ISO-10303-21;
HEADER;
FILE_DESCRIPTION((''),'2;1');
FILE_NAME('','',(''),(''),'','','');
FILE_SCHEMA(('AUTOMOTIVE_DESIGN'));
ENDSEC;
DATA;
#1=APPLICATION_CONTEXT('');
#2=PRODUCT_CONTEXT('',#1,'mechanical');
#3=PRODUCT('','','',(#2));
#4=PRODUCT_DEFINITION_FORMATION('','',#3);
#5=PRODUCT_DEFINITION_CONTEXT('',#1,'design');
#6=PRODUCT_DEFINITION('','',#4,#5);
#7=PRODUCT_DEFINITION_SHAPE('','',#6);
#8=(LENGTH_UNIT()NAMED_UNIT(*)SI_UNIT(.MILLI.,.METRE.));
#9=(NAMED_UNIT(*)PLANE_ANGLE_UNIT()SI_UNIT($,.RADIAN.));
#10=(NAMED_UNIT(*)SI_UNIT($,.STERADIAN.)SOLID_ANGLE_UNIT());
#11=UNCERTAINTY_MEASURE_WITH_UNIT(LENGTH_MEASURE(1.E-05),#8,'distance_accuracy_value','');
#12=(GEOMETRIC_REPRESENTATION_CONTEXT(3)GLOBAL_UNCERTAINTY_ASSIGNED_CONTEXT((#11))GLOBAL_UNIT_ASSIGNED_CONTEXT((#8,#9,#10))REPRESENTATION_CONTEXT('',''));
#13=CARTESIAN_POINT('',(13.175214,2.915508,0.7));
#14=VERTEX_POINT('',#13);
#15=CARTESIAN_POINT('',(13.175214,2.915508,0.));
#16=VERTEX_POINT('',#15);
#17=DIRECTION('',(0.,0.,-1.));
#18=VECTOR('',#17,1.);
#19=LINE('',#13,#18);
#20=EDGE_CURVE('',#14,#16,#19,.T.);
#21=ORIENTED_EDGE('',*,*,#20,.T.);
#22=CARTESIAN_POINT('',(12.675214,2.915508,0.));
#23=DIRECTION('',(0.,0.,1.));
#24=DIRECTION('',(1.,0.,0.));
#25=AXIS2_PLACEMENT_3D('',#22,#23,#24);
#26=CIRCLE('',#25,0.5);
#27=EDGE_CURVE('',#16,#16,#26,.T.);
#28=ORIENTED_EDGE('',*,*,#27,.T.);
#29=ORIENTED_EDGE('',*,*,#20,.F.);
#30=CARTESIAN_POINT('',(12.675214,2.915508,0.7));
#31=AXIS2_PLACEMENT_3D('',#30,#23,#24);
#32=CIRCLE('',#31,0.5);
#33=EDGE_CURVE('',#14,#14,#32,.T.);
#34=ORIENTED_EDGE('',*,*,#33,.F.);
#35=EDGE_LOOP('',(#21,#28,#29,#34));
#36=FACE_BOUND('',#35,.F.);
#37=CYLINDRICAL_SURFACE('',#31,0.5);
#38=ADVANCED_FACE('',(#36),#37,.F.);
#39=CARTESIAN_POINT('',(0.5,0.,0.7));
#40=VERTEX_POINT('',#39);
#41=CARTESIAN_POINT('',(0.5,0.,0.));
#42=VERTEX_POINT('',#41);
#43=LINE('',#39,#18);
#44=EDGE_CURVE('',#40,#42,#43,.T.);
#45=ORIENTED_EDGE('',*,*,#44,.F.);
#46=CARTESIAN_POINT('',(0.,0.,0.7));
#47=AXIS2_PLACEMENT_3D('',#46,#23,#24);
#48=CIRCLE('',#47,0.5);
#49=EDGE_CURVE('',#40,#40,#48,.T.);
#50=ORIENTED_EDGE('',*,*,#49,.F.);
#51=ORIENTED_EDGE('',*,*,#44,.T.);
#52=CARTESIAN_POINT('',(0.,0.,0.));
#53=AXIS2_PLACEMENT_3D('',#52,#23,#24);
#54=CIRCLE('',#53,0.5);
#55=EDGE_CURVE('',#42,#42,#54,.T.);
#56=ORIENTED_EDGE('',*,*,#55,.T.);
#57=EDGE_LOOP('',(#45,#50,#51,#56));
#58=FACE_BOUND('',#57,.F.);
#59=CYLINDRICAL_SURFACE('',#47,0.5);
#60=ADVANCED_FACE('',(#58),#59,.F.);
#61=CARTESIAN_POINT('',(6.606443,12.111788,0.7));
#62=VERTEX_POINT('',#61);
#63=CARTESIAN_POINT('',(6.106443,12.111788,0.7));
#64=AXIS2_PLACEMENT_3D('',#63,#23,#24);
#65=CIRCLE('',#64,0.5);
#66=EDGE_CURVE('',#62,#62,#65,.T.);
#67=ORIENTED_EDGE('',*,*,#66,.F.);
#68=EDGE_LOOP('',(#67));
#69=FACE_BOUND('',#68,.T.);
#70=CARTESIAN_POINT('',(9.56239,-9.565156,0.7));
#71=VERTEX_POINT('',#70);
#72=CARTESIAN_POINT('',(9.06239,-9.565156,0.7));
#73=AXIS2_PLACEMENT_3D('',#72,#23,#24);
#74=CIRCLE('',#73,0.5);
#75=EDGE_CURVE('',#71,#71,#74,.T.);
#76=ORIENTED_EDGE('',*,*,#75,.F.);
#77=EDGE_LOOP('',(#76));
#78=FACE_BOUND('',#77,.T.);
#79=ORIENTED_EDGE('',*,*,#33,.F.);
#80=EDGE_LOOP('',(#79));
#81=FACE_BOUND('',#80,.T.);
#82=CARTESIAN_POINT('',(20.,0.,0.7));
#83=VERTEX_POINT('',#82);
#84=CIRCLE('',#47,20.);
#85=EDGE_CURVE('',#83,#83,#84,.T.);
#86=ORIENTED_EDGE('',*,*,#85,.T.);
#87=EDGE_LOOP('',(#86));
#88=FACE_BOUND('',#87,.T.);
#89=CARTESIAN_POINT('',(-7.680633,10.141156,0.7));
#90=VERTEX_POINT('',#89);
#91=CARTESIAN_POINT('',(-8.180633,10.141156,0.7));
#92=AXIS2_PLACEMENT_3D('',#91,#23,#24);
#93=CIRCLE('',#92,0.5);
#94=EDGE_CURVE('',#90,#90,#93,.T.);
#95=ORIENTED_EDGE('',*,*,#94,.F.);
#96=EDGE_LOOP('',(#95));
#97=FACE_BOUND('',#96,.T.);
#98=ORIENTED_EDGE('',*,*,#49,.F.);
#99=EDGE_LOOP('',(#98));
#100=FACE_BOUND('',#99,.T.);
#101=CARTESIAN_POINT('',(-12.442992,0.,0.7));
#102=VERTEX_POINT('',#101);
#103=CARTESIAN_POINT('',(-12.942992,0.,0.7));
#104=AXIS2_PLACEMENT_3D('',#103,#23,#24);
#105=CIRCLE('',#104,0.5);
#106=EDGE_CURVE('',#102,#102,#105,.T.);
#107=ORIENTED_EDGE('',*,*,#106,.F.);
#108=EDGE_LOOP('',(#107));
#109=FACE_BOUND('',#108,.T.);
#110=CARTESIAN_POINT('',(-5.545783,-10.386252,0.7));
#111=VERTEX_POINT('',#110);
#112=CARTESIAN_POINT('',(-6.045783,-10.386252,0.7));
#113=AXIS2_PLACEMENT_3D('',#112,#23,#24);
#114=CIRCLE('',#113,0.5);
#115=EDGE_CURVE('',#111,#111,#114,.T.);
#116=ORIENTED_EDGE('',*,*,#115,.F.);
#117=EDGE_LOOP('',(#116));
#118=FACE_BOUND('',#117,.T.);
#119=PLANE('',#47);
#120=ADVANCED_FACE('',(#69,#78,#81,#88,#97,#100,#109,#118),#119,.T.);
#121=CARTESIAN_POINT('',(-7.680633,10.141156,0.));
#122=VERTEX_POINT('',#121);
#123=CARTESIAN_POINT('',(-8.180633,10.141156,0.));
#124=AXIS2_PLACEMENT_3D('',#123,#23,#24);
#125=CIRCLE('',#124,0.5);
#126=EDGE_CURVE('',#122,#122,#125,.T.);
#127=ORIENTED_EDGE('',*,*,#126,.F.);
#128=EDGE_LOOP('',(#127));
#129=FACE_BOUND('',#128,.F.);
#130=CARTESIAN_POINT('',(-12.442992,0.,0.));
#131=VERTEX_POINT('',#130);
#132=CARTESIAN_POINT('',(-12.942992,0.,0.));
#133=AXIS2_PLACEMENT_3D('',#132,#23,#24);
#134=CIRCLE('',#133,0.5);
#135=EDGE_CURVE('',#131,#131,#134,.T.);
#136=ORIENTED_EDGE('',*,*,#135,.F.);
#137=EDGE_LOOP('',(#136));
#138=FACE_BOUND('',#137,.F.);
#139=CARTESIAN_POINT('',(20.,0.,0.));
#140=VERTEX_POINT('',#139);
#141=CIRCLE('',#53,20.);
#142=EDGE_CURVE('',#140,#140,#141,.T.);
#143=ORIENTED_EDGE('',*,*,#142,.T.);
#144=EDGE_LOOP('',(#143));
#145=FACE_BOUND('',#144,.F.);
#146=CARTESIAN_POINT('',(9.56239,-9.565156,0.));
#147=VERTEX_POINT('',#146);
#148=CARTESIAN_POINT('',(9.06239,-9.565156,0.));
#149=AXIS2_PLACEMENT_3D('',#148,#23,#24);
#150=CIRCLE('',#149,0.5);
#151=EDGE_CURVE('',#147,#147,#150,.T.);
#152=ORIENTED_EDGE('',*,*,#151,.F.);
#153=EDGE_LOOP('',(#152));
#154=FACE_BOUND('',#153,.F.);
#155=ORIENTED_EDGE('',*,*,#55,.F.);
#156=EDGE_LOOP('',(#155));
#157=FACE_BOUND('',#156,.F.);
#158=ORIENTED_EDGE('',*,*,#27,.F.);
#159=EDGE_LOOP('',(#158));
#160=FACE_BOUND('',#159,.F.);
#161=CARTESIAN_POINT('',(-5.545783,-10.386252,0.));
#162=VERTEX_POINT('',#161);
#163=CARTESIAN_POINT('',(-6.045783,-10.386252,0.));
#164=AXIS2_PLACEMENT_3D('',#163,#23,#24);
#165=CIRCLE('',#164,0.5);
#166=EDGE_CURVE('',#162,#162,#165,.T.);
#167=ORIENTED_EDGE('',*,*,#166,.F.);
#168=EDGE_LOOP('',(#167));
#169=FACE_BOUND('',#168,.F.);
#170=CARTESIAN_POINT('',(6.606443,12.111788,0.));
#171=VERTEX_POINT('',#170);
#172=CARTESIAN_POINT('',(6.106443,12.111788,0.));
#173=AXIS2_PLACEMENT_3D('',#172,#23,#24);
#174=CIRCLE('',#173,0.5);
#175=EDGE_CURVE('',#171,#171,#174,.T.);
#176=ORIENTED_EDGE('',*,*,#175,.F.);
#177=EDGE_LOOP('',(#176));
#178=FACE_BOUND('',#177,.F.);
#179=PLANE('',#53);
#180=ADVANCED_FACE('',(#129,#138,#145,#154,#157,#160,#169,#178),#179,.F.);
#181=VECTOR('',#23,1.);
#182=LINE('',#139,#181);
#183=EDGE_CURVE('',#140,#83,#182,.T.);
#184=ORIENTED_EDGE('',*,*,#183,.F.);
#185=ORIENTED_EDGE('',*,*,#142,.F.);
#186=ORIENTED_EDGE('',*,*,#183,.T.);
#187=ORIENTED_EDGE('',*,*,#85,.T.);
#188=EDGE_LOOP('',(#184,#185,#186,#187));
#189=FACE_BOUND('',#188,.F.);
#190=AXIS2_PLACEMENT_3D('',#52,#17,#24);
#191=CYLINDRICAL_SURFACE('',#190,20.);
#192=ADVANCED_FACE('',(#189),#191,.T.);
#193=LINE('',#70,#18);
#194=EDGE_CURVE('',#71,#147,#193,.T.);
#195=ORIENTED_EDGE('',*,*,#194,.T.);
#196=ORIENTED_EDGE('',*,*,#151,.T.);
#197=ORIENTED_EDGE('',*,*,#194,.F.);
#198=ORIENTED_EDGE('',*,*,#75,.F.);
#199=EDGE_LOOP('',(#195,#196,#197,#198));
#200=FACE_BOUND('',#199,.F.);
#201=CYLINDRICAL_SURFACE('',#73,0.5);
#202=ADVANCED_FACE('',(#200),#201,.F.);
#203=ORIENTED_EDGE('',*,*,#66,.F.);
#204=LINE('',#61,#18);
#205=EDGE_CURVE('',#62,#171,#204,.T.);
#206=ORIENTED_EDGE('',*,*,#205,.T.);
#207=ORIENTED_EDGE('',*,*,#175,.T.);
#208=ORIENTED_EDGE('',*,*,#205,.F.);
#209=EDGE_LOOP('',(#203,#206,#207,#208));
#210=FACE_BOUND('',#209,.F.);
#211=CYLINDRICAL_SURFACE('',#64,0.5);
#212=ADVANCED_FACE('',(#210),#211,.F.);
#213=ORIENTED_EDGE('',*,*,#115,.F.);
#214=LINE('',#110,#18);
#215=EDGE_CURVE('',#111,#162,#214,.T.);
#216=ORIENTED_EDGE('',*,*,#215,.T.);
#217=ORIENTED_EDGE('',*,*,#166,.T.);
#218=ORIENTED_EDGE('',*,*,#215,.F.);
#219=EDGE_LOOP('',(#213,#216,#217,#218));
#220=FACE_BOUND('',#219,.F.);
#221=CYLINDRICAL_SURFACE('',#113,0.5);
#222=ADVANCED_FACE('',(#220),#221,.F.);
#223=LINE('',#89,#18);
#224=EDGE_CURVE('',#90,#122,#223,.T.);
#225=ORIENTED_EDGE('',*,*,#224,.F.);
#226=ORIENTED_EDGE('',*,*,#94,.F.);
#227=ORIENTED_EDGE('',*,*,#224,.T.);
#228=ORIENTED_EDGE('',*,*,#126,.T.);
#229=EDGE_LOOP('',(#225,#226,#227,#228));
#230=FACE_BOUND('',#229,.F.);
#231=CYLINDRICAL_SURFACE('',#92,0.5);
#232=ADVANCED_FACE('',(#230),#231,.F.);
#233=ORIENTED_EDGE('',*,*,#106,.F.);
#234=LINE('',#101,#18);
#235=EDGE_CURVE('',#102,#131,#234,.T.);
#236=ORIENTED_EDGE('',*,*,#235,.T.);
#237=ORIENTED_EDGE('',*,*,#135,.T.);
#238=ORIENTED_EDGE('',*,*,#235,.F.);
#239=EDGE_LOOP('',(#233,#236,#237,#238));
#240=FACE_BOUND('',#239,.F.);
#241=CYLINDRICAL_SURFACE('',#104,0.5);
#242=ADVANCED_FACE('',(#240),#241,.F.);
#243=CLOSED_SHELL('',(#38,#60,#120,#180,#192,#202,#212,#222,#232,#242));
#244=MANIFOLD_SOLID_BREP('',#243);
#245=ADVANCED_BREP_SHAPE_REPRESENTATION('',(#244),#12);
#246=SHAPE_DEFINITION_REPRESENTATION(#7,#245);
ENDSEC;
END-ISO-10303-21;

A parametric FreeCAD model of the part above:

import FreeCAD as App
import Part
import Sketcher
Q = App.Units.Quantity

doc = App.newDocument("Part")
body = doc.addObject("PartDesign::Body", "Body")

# Sketch on XY plane
sketch1 = doc.addObject("Sketcher::SketchObject", "Sketch")
body.addObject(sketch1)
sketch1.AttachmentSupport = (doc.XY_Plane, [""])
sketch1.MapMode = "FlatFace"
sketch1.addGeometry(Part.Circle(App.Vector(0, 0, 0), App.Vector(0, 0, 1), 20), False)
sketch1.addConstraint([
    Sketcher.Constraint("Coincident", 0, 3, -1, 1),
    Sketcher.Constraint("Diameter", 0, Q("40 mm")),
])
pad1 = doc.addObject("PartDesign::Pad", "Pad")
body.addObject(pad1)
pad1.Profile = sketch1
pad1.Length = 0.7

# Sketch on XY plane
sketch2 = doc.addObject("Sketcher::SketchObject", "Sketch001")
body.addObject(sketch2)
sketch2.AttachmentSupport = (doc.XY_Plane, [""])
sketch2.MapMode = "FlatFace"
sketch2.AttachmentOffset = App.Placement(App.Vector(0, 0, 0.7), App.Rotation())
sketch2.addGeometry([
    Part.Circle(App.Vector(-12.9, 0, 0), App.Vector(0, 0, 1), 0.5),  # 0
    Part.Circle(App.Vector(12.7, 2.9, 0), App.Vector(0, 0, 1), 0.5),  # 1
    Part.Circle(App.Vector(9.1, -9.6, 0), App.Vector(0, 0, 1), 0.5),  # 2
    Part.Circle(App.Vector(0, 0, 0), App.Vector(0, 0, 1), 0.5),  # 3
    Part.Circle(App.Vector(-8.2, 10.1, 0), App.Vector(0, 0, 1), 0.5),  # 4
    Part.Circle(App.Vector(-6, -10.4, 0), App.Vector(0, 0, 1), 0.5),  # 5
    Part.Circle(App.Vector(6.1, 12.1, 0), App.Vector(0, 0, 1), 0.5),  # 6
], False)
sketch2.addConstraint([
    Sketcher.Constraint("Coincident", 3, 3, -1, 1),
    Sketcher.Constraint("Equal", 0, 1),
    Sketcher.Constraint("Equal", 1, 2),
    Sketcher.Constraint("Equal", 2, 3),
    Sketcher.Constraint("Equal", 3, 4),
    Sketcher.Constraint("Equal", 4, 5),
    Sketcher.Constraint("Equal", 5, 6),
    Sketcher.Constraint("PointOnObject", 0, 3, -1),
    Sketcher.Constraint("Diameter", 0, Q("1 mm")),
    Sketcher.Constraint("DistanceY", -1, 1, 1, 3, Q("2.915508 mm")),
    Sketcher.Constraint("DistanceX", -1, 1, 2, 3, Q("9.06239 mm")),
    Sketcher.Constraint("DistanceY", -1, 1, 6, 3, Q("12.111788 mm")),
    Sketcher.Constraint("DistanceX", 0, 3, 4, 3, Q("4.762359 mm")),
    Sketcher.Constraint("DistanceY", 1, 3, 4, 3, Q("7.225648 mm")),
    Sketcher.Constraint("DistanceX", 0, 3, 5, 3, Q("6.897209 mm")),
    Sketcher.Constraint("DistanceY", 5, 3, 4, 3, Q("20.527408 mm")),
    Sketcher.Constraint("DistanceX", 6, 3, 1, 3, Q("6.568771 mm")),
    Sketcher.Constraint("DistanceX", 0, 3, -1, 1, Q("12.942992 mm")),
    Sketcher.Constraint("DistanceX", -1, 1, 1, 3, Q("12.675214 mm")),
    Sketcher.Constraint("DistanceY", 2, 3, -1, 1, Q("9.565156 mm")),
])
pocket1 = doc.addObject("PartDesign::Pocket", "Pocket")
body.addObject(pocket1)
pocket1.Profile = sketch2
pocket1.Length = 0.7

doc.recompute()
